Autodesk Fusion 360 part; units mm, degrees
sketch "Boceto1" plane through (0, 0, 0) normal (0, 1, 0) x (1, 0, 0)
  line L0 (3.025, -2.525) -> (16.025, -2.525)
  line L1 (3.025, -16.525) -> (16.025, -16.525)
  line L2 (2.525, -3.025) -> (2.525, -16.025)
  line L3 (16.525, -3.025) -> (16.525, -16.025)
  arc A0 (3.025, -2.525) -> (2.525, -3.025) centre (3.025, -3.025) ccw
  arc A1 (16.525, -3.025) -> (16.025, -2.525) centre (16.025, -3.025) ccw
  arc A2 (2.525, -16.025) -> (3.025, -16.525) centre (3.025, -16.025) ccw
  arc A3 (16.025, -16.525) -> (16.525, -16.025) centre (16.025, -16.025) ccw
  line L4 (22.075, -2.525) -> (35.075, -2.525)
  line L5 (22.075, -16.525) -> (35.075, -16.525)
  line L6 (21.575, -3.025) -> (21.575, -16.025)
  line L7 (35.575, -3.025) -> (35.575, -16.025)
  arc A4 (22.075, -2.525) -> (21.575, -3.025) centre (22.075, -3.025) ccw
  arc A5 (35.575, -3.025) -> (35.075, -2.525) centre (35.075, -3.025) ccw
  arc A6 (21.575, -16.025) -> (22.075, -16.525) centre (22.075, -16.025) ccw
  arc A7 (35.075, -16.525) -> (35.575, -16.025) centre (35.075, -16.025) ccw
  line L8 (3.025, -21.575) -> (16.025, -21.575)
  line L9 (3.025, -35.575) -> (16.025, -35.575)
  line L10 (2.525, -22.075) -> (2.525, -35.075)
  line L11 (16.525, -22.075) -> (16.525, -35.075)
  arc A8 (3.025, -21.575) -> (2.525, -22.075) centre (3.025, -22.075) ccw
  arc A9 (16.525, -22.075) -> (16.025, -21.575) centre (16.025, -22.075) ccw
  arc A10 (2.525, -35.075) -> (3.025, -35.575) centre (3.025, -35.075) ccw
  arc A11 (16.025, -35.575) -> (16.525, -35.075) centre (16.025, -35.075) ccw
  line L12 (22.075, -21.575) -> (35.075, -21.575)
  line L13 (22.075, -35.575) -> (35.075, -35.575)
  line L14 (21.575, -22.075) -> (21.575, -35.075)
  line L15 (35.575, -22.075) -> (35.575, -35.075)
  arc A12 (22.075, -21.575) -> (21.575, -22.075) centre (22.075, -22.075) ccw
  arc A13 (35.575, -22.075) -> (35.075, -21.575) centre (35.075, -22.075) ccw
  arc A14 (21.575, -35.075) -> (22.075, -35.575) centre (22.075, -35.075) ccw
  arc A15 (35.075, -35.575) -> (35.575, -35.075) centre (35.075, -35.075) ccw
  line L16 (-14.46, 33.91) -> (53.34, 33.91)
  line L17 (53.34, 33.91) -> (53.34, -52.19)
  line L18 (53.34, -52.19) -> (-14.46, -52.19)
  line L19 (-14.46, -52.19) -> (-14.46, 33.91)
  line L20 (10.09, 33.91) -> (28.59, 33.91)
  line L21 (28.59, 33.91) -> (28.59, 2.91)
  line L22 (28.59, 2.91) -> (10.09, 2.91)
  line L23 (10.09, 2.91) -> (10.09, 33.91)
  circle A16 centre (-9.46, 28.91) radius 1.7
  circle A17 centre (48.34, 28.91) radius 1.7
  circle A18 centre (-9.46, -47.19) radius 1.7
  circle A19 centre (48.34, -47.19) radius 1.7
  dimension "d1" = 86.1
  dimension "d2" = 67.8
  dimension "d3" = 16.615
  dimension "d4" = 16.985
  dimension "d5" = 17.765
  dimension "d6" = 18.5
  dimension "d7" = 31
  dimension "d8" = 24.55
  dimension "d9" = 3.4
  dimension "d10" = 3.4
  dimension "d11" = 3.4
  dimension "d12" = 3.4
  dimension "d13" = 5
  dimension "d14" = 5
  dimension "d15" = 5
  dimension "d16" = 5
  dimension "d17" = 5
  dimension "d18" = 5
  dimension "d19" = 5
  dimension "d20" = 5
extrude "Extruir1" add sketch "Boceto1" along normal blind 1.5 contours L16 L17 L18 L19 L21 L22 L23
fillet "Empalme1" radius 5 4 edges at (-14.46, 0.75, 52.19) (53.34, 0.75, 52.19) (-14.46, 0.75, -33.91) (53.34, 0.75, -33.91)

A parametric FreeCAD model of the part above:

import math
import FreeCAD as App
import Part
import Sketcher

V = App.Vector


def edges_at(feature, points):
    """Names of the edges that pass closest to the given points."""
    edges = feature.Shape.Edges
    near = lambda p: min(range(len(edges)), key=lambda i: edges[i].distToShape(Part.Vertex(*p))[0])
    return sorted({f"Edge{near(p) + 1}" for p in points})

doc = App.newDocument("Part")
params = doc.addObject("Spreadsheet::Sheet", "Params")
for row, (alias, value) in enumerate([
    ("sketch1_diameter", "3.4 mm"),
    ("sketch1_height", "31 mm"),
    ("sketch1_width", "67.8 mm"),
    ("sketch1_width2", "18.5 mm"),
    ("sketch1_height2", "86.1 mm"),
    ("pad1_length", "1.5 mm"),
    ("fillet_radius", "5 mm"),
], start=1):
    params.set(f"A{row}", alias)
    params.set(f"B{row}", "=" + value)
    params.setAlias(f"B{row}", alias)

body = doc.addObject("PartDesign::Body", "Body")

sketch1 = body.newObject("Sketcher::SketchObject", "Sketch")
sketch1.AttachmentSupport = (doc.getObject("XZ_Plane"), [""])
sketch1.MapMode = "FlatFace"
sketch1.addGeometry(Part.LineSegment(V(10.1, -33.9, 0), V(-14.5, -33.9, 0)), False)
sketch1.addGeometry(Part.LineSegment(V(-14.5, -33.9, 0), V(-14.5, 52.2, 0)), False)
sketch1.addGeometry(Part.LineSegment(V(-14.5, 52.2, 0), V(53.3, 52.2, 0)), False)
sketch1.addGeometry(Part.LineSegment(V(53.3, 52.2, 0), V(53.3, -33.9, 0)), False)
sketch1.addGeometry(Part.LineSegment(V(53.3, -33.9, 0), V(28.6, -33.9, 0)), False)
sketch1.addGeometry(Part.LineSegment(V(28.6, -33.9, 0), V(28.6, -2.9, 0)), False)
sketch1.addGeometry(Part.LineSegment(V(28.6, -2.9, 0), V(10.1, -2.9, 0)), False)
sketch1.addGeometry(Part.LineSegment(V(10.1, -2.9, 0), V(10.1, -33.9, 0)), False)
sketch1.addGeometry(Part.Circle(V(-9.5, 47.2, 0), V(0, 0, 1), 1.7), False)
sketch1.addGeometry(Part.ArcOfCircle(Part.Circle(V(3, 22.1, 0), V(0, 0, 1), 0.5), math.radians(180), math.radians(270)), False)
sketch1.addGeometry(Part.LineSegment(V(3, 21.6, 0), V(16, 21.6, 0)), False)
sketch1.addGeometry(Part.ArcOfCircle(Part.Circle(V(16, 22.1, 0), V(0, 0, 1), 0.5), math.radians(-90), math.radians(0)), False)
sketch1.addGeometry(Part.LineSegment(V(16.5, 22.1, 0), V(16.5, 35.1, 0)), False)
sketch1.addGeometry(Part.ArcOfCircle(Part.Circle(V(16, 35.1, 0), V(0, 0, 1), 0.5), math.radians(0), math.radians(90)), False)
sketch1.addGeometry(Part.LineSegment(V(16, 35.6, 0), V(3, 35.6, 0)), False)
sketch1.addGeometry(Part.ArcOfCircle(Part.Circle(V(3, 35.1, 0), V(0, 0, 1), 0.5), math.radians(90), math.radians(180)), False)
sketch1.addGeometry(Part.LineSegment(V(2.5, 35.1, 0), V(2.5, 22.1, 0)), False)
sketch1.addGeometry(Part.ArcOfCircle(Part.Circle(V(3, 3, 0), V(0, 0, 1), 0.5), math.radians(180), math.radians(270)), False)
sketch1.addGeometry(Part.LineSegment(V(3, 2.5, 0), V(16, 2.5, 0)), False)
sketch1.addGeometry(Part.ArcOfCircle(Part.Circle(V(16, 3, 0), V(0, 0, 1), 0.5), math.radians(-90), math.radians(0)), False)
sketch1.addGeometry(Part.LineSegment(V(16.5, 3, 0), V(16.5, 16, 0)), False)
sketch1.addGeometry(Part.ArcOfCircle(Part.Circle(V(16, 16, 0), V(0, 0, 1), 0.5), math.radians(0), math.radians(90)), False)
sketch1.addGeometry(Part.LineSegment(V(16, 16.5, 0), V(3, 16.5, 0)), False)
sketch1.addGeometry(Part.ArcOfCircle(Part.Circle(V(3, 16, 0), V(0, 0, 1), 0.5), math.radians(90), math.radians(180)), False)
sketch1.addGeometry(Part.LineSegment(V(2.5, 16, 0), V(2.5, 3, 0)), False)
sketch1.addGeometry(Part.Circle(V(48.3, 47.2, 0), V(0, 0, 1), 1.7), False)
sketch1.addGeometry(Part.ArcOfCircle(Part.Circle(V(22.1, 22.1, 0), V(0, 0, 1), 0.5), math.radians(180), math.radians(270)), False)
sketch1.addGeometry(Part.LineSegment(V(22.1, 21.6, 0), V(35.1, 21.6, 0)), False)
sketch1.addGeometry(Part.ArcOfCircle(Part.Circle(V(35.1, 22.1, 0), V(0, 0, 1), 0.5), math.radians(-90), math.radians(0)), False)
sketch1.addGeometry(Part.LineSegment(V(35.6, 22.1, 0), V(35.6, 35.1, 0)), False)
sketch1.addGeometry(Part.ArcOfCircle(Part.Circle(V(35.1, 35.1, 0), V(0, 0, 1), 0.5), math.radians(0), math.radians(90)), False)
sketch1.addGeometry(Part.LineSegment(V(35.1, 35.6, 0), V(22.1, 35.6, 0)), False)
sketch1.addGeometry(Part.ArcOfCircle(Part.Circle(V(22.1, 35.1, 0), V(0, 0, 1), 0.5), math.radians(90), math.radians(180)), False)
sketch1.addGeometry(Part.LineSegment(V(21.6, 35.1, 0), V(21.6, 22.1, 0)), False)
sketch1.addGeometry(Part.ArcOfCircle(Part.Circle(V(22.1, 3, 0), V(0, 0, 1), 0.5), math.radians(180), math.radians(270)), False)
sketch1.addGeometry(Part.LineSegment(V(22.1, 2.5, 0), V(35.1, 2.5, 0)), False)
sketch1.addGeometry(Part.ArcOfCircle(Part.Circle(V(35.1, 3, 0), V(0, 0, 1), 0.5), math.radians(-90), math.radians(0)), False)
sketch1.addGeometry(Part.LineSegment(V(35.6, 3, 0), V(35.6, 16, 0)), False)
sketch1.addGeometry(Part.ArcOfCircle(Part.Circle(V(35.1, 16, 0), V(0, 0, 1), 0.5), math.radians(0), math.radians(90)), False)
sketch1.addGeometry(Part.LineSegment(V(35.1, 16.5, 0), V(22.1, 16.5, 0)), False)
sketch1.addGeometry(Part.ArcOfCircle(Part.Circle(V(22.1, 16, 0), V(0, 0, 1), 0.5), math.radians(90), math.radians(180)), False)
sketch1.addGeometry(Part.LineSegment(V(21.6, 16, 0), V(21.6, 3, 0)), False)
sketch1.addGeometry(Part.Circle(V(-9.5, -28.9, 0), V(0, 0, 1), 1.7), False)
sketch1.addGeometry(Part.Circle(V(48.3, -28.9, 0), V(0, 0, 1), 1.7), False)
sketch1.addConstraint(Sketcher.Constraint("Coincident", 0, 2, 1, 1))
sketch1.addConstraint(Sketcher.Constraint("Coincident", 1, 2, 2, 1))
sketch1.addConstraint(Sketcher.Constraint("Coincident", 2, 2, 3, 1))
sketch1.addConstraint(Sketcher.Constraint("Coincident", 3, 2, 4, 1))
sketch1.addConstraint(Sketcher.Constraint("Coincident", 4, 2, 5, 1))
sketch1.addConstraint(Sketcher.Constraint("Coincident", 5, 2, 6, 1))
sketch1.addConstraint(Sketcher.Constraint("Coincident", 6, 2, 7, 1))
sketch1.addConstraint(Sketcher.Constraint("Coincident", 7, 2, 0, 1))
sketch1.addConstraint(Sketcher.Constraint("Tangent", 9, 2, 10, 1))
sketch1.addConstraint(Sketcher.Constraint("Tangent", 10, 2, 11, 1))
sketch1.addConstraint(Sketcher.Constraint("Tangent", 11, 2, 12, 1))
sketch1.addConstraint(Sketcher.Constraint("Tangent", 12, 2, 13, 1))
sketch1.addConstraint(Sketcher.Constraint("Tangent", 13, 2, 14, 1))
sketch1.addConstraint(Sketcher.Constraint("Tangent", 14, 2, 15, 1))
sketch1.addConstraint(Sketcher.Constraint("Tangent", 15, 2, 16, 1))
sketch1.addConstraint(Sketcher.Constraint("Tangent", 16, 2, 9, 1))
sketch1.addConstraint(Sketcher.Constraint("Tangent", 17, 2, 18, 1))
sketch1.addConstraint(Sketcher.Constraint("Tangent", 18, 2, 19, 1))
sketch1.addConstraint(Sketcher.Constraint("Tangent", 19, 2, 20, 1))
sketch1.addConstraint(Sketcher.Constraint("Tangent", 20, 2, 21, 1))
sketch1.addConstraint(Sketcher.Constraint("Tangent", 21, 2, 22, 1))
sketch1.addConstraint(Sketcher.Constraint("Tangent", 22, 2, 23, 1))
sketch1.addConstraint(Sketcher.Constraint("Tangent", 23, 2, 24, 1))
sketch1.addConstraint(Sketcher.Constraint("Tangent", 24, 2, 17, 1))
sketch1.addConstraint(Sketcher.Constraint("Tangent", 26, 2, 27, 1))
sketch1.addConstraint(Sketcher.Constraint("Tangent", 27, 2, 28, 1))
sketch1.addConstraint(Sketcher.Constraint("Tangent", 28, 2, 29, 1))
sketch1.addConstraint(Sketcher.Constraint("Tangent", 29, 2, 30, 1))
sketch1.addConstraint(Sketcher.Constraint("Tangent", 30, 2, 31, 1))
sketch1.addConstraint(Sketcher.Constraint("Tangent", 31, 2, 32, 1))
sketch1.addConstraint(Sketcher.Constraint("Tangent", 32, 2, 33, 1))
sketch1.addConstraint(Sketcher.Constraint("Tangent", 33, 2, 26, 1))
sketch1.addConstraint(Sketcher.Constraint("Tangent", 34, 2, 35, 1))
sketch1.addConstraint(Sketcher.Constraint("Tangent", 35, 2, 36, 1))
sketch1.addConstraint(Sketcher.Constraint("Tangent", 36, 2, 37, 1))
sketch1.addConstraint(Sketcher.Constraint("Tangent", 37, 2, 38, 1))
sketch1.addConstraint(Sketcher.Constraint("Tangent", 38, 2, 39, 1))
sketch1.addConstraint(Sketcher.Constraint("Tangent", 39, 2, 40, 1))
sketch1.addConstraint(Sketcher.Constraint("Tangent", 40, 2, 41, 1))
sketch1.addConstraint(Sketcher.Constraint("Tangent", 41, 2, 34, 1))
sketch1.addConstraint(Sketcher.Constraint("Horizontal", 0))
sketch1.addConstraint(Sketcher.Constraint("Vertical", 1))
sketch1.addConstraint(Sketcher.Constraint("Horizontal", 2))
sketch1.addConstraint(Sketcher.Constraint("Vertical", 3))
sketch1.addConstraint(Sketcher.Constraint("Horizontal", 4))
sketch1.addConstraint(Sketcher.Constraint("Vertical", 5))
sketch1.addConstraint(Sketcher.Constraint("Horizontal", 6))
sketch1.addConstraint(Sketcher.Constraint("Vertical", 7))
sketch1.addConstraint(Sketcher.Constraint("Horizontal", 10))
sketch1.addConstraint(Sketcher.Constraint("Vertical", 12))
sketch1.addConstraint(Sketcher.Constraint("Horizontal", 14))
sketch1.addConstraint(Sketcher.Constraint("Vertical", 16))
sketch1.addConstraint(Sketcher.Constraint("Horizontal", 18))
sketch1.addConstraint(Sketcher.Constraint("Vertical", 20))
sketch1.addConstraint(Sketcher.Constraint("Horizontal", 22))
sketch1.addConstraint(Sketcher.Constraint("Vertical", 24))
sketch1.addConstraint(Sketcher.Constraint("Horizontal", 27))
sketch1.addConstraint(Sketcher.Constraint("Vertical", 29))
sketch1.addConstraint(Sketcher.Constraint("Horizontal", 31))
sketch1.addConstraint(Sketcher.Constraint("Vertical", 33))
sketch1.addConstraint(Sketcher.Constraint("Horizontal", 35))
sketch1.addConstraint(Sketcher.Constraint("Vertical", 37))
sketch1.addConstraint(Sketcher.Constraint("Horizontal", 39))
sketch1.addConstraint(Sketcher.Constraint("Vertical", 41))
sketch1.addConstraint(Sketcher.Constraint("Equal", 9, 11))
sketch1.addConstraint(Sketcher.Constraint("Equal", 11, 13))
sketch1.addConstraint(Sketcher.Constraint("Equal", 13, 15))
sketch1.addConstraint(Sketcher.Constraint("Equal", 15, 17))
sketch1.addConstraint(Sketcher.Constraint("Equal", 17, 19))
sketch1.addConstraint(Sketcher.Constraint("Equal", 19, 21))
sketch1.addConstraint(Sketcher.Constraint("Equal", 21, 23))
sketch1.addConstraint(Sketcher.Constraint("Equal", 8, 25))
sketch1.addConstraint(Sketcher.Constraint("Equal", 23, 26))
sketch1.addConstraint(Sketcher.Constraint("Equal", 26, 28))
sketch1.addConstraint(Sketcher.Constraint("Equal", 28, 30))
sketch1.addConstraint(Sketcher.Constraint("Equal", 30, 32))
sketch1.addConstraint(Sketcher.Constraint("Equal", 32, 34))
sketch1.addConstraint(Sketcher.Constraint("Equal", 34, 36))
sketch1.addConstraint(Sketcher.Constraint("Equal", 36, 38))
sketch1.addConstraint(Sketcher.Constraint("Equal", 38, 40))
sketch1.addConstraint(Sketcher.Constraint("Equal", 25, 42))
sketch1.addConstraint(Sketcher.Constraint("Equal", 42, 43))
sketch1.addConstraint(Sketcher.Constraint("Horizontal", 8, 3, 25, 3))
sketch1.addConstraint(Sketcher.Constraint("Horizontal", 11, 3, 26, 3))
sketch1.addConstraint(Sketcher.Constraint("Horizontal", 15, 3, 30, 3))
sketch1.addConstraint(Sketcher.Constraint("Horizontal", 19, 3, 34, 3))
sketch1.addConstraint(Sketcher.Constraint("Horizontal", 23, 3, 38, 3))
sketch1.addConstraint(Sketcher.Constraint("Horizontal", 42, 3, 43, 3))
sketch1.addConstraint(Sketcher.Constraint("Horizontal", 0, 2, 3, 2))
sketch1.addConstraint(Sketcher.Constraint("Vertical", 15, 3, 17, 3))
sketch1.addConstraint(Sketcher.Constraint("Vertical", 13, 3, 19, 3))
sketch1.addConstraint(Sketcher.Constraint("Vertical", 32, 3, 34, 3))
sketch1.addConstraint(Sketcher.Constraint("Vertical", 30, 3, 36, 3))
sketch1.addConstraint(Sketcher.Constraint("Vertical", 8, 3, 42, 3))
sketch1.addConstraint(Sketcher.Constraint("Vertical", 25, 3, 43, 3))
sketch1.addConstraint(Sketcher.Constraint("Equal", 22, 27))
sketch1.addConstraint(Sketcher.Constraint("Equal", 39, 12))
sketch1.addConstraint(Sketcher.Constraint("Equal", 16, 20))
sketch1.addConstraint(Sketcher.Constraint("Diameter", 8, 3.4))
sketch1.addConstraint(Sketcher.Constraint("DistanceY", 5, 1, 5, 2, 31.0))
sketch1.addConstraint(Sketcher.Constraint("DistanceX", 2, 1, 2, 2, 67.8))
sketch1.addConstraint(Sketcher.Constraint("DistanceX", 6, 2, 6, 1, 18.5))
sketch1.addConstraint(Sketcher.Constraint("DistanceY", 1, 1, 1, 2, 86.1))
sketch1.addConstraint(Sketcher.Constraint("DistanceX", 0, 2, 42, 3, 5.0))
sketch1.addConstraint(Sketcher.Constraint("DistanceY", 0, 2, 42, 3, 5.0))
sketch1.addConstraint(Sketcher.Constraint("DistanceY", 8, 3, 1, 2, 5.0))
sketch1.addConstraint(Sketcher.Constraint("DistanceX", 25, 3, 2, 2, 5.0))
sketch1.addConstraint(Sketcher.Constraint("DistanceX", 0, 2, 0, 1, 24.55))
sketch1.addConstraint(Sketcher.Constraint("Radius", 9, 0.5))
sketch1.addConstraint(Sketcher.Constraint("DistanceX", 10, 1, 10, 2, 13.0))
sketch1.addConstraint(Sketcher.Constraint("DistanceX", 8, 3, -1, 1, 9.46))
sketch1.addConstraint(Sketcher.Constraint("DistanceY", -1, 1, 8, 3, 47.19))
sketch1.addConstraint(Sketcher.Constraint("DistanceY", 17, 3, 9, 3, 19.05))
sketch1.addConstraint(Sketcher.Constraint("DistanceX", 11, 3, 26, 3, 6.05))
sketch1.addConstraint(Sketcher.Constraint("DistanceX", -1, 1, 9, 3, 3.025))
sketch1.addConstraint(Sketcher.Constraint("DistanceY", -1, 1, 9, 3, 22.075))
sketch1.setExpression("Constraints[98]", "Params.sketch1_diameter")
sketch1.setExpression("Constraints[99]", "Params.sketch1_height")
sketch1.setExpression("Constraints[100]", "Params.sketch1_width")
sketch1.setExpression("Constraints[101]", "Params.sketch1_width2")
sketch1.setExpression("Constraints[102]", "Params.sketch1_height2")
pad1 = body.newObject("PartDesign::Pad", "Pad")
pad1.Profile = sketch1
pad1.setExpression("Length", "Params.pad1_length")
pad1.Reversed = True
doc.recompute()

fillet = body.newObject("PartDesign::Fillet", "Fillet")
fillet.Base = (pad1, edges_at(pad1, [
    (-14.46, 0.75, 52.19),
    (53.34, 0.75, 52.19),
    (-14.46, 0.75, -33.91),
    (53.34, 0.75, -33.91),
]))
fillet.setExpression("Radius", "Params.fillet_radius")

doc.recompute()
